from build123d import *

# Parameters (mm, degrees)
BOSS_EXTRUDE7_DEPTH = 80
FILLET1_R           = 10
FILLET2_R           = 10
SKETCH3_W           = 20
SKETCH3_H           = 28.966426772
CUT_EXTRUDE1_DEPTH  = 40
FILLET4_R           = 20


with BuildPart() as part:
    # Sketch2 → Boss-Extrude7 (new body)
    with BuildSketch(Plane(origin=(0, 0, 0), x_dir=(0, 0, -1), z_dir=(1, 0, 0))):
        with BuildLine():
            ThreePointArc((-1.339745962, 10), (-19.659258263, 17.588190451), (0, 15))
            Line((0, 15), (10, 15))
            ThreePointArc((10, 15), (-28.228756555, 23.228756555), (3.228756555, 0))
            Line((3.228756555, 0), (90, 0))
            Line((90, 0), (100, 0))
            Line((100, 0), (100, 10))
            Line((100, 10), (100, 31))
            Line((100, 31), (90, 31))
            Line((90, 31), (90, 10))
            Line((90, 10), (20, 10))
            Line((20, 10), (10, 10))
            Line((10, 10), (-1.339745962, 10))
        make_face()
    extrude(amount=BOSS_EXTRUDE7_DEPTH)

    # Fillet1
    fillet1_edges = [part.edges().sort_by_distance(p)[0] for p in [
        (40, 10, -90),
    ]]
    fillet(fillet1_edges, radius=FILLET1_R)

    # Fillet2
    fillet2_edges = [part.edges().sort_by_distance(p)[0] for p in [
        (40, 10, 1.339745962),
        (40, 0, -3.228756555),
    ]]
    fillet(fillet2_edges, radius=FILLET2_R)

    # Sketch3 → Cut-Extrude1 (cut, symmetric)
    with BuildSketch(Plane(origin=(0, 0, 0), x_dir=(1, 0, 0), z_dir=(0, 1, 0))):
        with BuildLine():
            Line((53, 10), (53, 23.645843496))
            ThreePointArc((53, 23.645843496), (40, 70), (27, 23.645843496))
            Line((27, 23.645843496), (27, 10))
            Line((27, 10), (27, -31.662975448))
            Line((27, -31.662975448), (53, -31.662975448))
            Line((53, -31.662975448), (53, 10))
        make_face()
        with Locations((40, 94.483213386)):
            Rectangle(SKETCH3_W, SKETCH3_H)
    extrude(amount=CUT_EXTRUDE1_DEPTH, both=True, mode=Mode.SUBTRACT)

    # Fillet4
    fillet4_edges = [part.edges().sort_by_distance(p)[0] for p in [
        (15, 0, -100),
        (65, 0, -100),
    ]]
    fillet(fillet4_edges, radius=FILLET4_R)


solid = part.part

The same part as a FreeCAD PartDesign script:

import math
import FreeCAD as App
import Part
import Sketcher

V = App.Vector


def edges_at(feature, points):
    """Names of the edges that pass closest to the given points."""
    edges = feature.Shape.Edges
    near = lambda p: min(range(len(edges)), key=lambda i: edges[i].distToShape(Part.Vertex(*p))[0])
    return sorted({f"Edge{near(p) + 1}" for p in points})

doc = App.newDocument("Part")
body = doc.addObject("PartDesign::Body", "Body")

# Sketch on YZ plane
sketch1 = body.newObject("Sketcher::SketchObject", "Sketch")
sketch1.AttachmentSupport = (doc.getObject("YZ_Plane"), [""])
sketch1.MapMode = "FlatFace"
sketch1.addGeometry([
    Part.ArcOfCircle(Part.Circle(V(15, 10, 0), V(0, 0, 1), 10), math.radians(-90), math.radians(240)),  # 0
    Part.LineSegment(V(15, 0, 0), V(15, -10, 0)),  # 1
    Part.ArcOfCircle(Part.Circle(V(15, 10, 0), V(0, 0, 1), 20), math.radians(-90), math.radians(221.409622)),  # 2
    Part.LineSegment(V(0, -3.228757, 0), V(0, -100, 0)),  # 3
    Part.LineSegment(V(0, -100, 0), V(31, -100, 0)),  # 4
    Part.LineSegment(V(31, -100, 0), V(31, -90, 0)),  # 5
    Part.LineSegment(V(31, -90, 0), V(10, -90, 0)),  # 6
    Part.LineSegment(V(10, -90, 0), V(10, 1.339746, 0)),  # 7
], False)
sketch1.addConstraint([
    Sketcher.Constraint("Coincident", 0, 1, 1, 1),
    Sketcher.Constraint("Coincident", 1, 2, 2, 1),
    Sketcher.Constraint("Coincident", 2, 2, 3, 1),
    Sketcher.Constraint("Coincident", 3, 2, 4, 1),
    Sketcher.Constraint("Coincident", 4, 2, 5, 1),
    Sketcher.Constraint("Coincident", 5, 2, 6, 1),
    Sketcher.Constraint("Coincident", 6, 2, 7, 1),
    Sketcher.Constraint("Coincident", 7, 2, 0, 2),
    Sketcher.Constraint("Vertical", 1),
    Sketcher.Constraint("Vertical", 3),
    Sketcher.Constraint("Horizontal", 4),
    Sketcher.Constraint("Vertical", 5),
    Sketcher.Constraint("Horizontal", 6),
    Sketcher.Constraint("Vertical", 7),
    Sketcher.Constraint("Coincident", 2, 3, 0, 3),
    Sketcher.Constraint("PointOnObject", 0, 1, -1),
    Sketcher.Constraint("PointOnObject", 2, 2, -2),
    Sketcher.Constraint("Vertical", 2, 3, 0, 1),
    Sketcher.Constraint("Equal", 1, 5),
    Sketcher.Constraint("Radius", 0, 10.0),
    Sketcher.Constraint("Radius", 2, 20.0),
    Sketcher.Constraint("DistanceX", 4, 1, 4, 2, 31.0),
    Sketcher.Constraint("DistanceX", 6, 2, 6, 1, 21.0),
    Sketcher.Constraint("DistanceX", -1, 1, 0, 3, 15.0),
    Sketcher.Constraint("DistanceY", 3, 2, -1, 1, 100.0),
])
pad1 = body.newObject("PartDesign::Pad", "Pad")
pad1.Profile = sketch1
pad1.Length = 80
doc.recompute()

fillet = body.newObject("PartDesign::Fillet", "Fillet")
fillet.Base = (pad1, edges_at(pad1, [(40, 10, -90)]))
fillet.Radius = 10
doc.recompute()

fillet2 = body.newObject("PartDesign::Fillet", "Fillet001")
fillet2.Base = (fillet, edges_at(fillet, [(40, 10, 1.34), (40, 0, -3.229)]))
fillet2.Radius = 10

# Sketch on XZ plane
sketch2 = body.newObject("Sketcher::SketchObject", "Sketch001")
sketch2.AttachmentSupport = (doc.getObject("XZ_Plane"), [""])
sketch2.MapMode = "FlatFace"
sketch2.addGeometry([
    Part.ArcOfCircle(Part.Circle(V(40, -45, 0), V(0, 0, 1), 25), math.radians(121.332251), math.radians(418.667749)),  # 0
    Part.LineSegment(V(27, -23.645843, 0), V(27, 31.662975, 0)),  # 1
    Part.LineSegment(V(27, 31.662975, 0), V(53, 31.662975, 0)),  # 2
    Part.LineSegment(V(53, 31.662975, 0), V(53, -23.645843, 0)),  # 3
    Part.LineSegment(V(30, -108.966427, 0), V(30, -80, 0)),  # 4
    Part.LineSegment(V(30, -80, 0), V(50, -80, 0)),  # 5
    Part.LineSegment(V(50, -80, 0), V(50, -108.966427, 0)),  # 6
    Part.LineSegment(V(50, -108.966427, 0), V(30, -108.966427, 0)),  # 7
], False)
sketch2.addConstraint([
    Sketcher.Constraint("Coincident", 0, 1, 1, 1),
    Sketcher.Constraint("Coincident", 1, 2, 2, 1),
    Sketcher.Constraint("Coincident", 2, 2, 3, 1),
    Sketcher.Constraint("Coincident", 3, 2, 0, 2),
    Sketcher.Constraint("Coincident", 4, 2, 5, 1),
    Sketcher.Constraint("Coincident", 5, 2, 6, 1),
    Sketcher.Constraint("Coincident", 6, 2, 7, 1),
    Sketcher.Constraint("Coincident", 7, 2, 4, 1),
    Sketcher.Constraint("Vertical", 1),
    Sketcher.Constraint("Horizontal", 2),
    Sketcher.Constraint("Vertical", 3),
    Sketcher.Constraint("Vertical", 4),
    Sketcher.Constraint("Horizontal", 5),
    Sketcher.Constraint("Vertical", 6),
    Sketcher.Constraint("Horizontal", 7),
    Sketcher.Constraint("Horizontal", 0, 1, 3, 2),
    Sketcher.Constraint("Radius", 0, 25.0),
    Sketcher.Constraint("DistanceX", 2, 1, 2, 2, 26.0),
    Sketcher.Constraint("DistanceX", 5, 1, 5, 2, 20.0),
    Sketcher.Constraint("DistanceX", -1, 1, 0, 3, 40.0),
    Sketcher.Constraint("DistanceY", 0, 3, -1, 1, 45.0),
    Sketcher.Constraint("DistanceX", -1, 1, 4, 2, 30.0),
    Sketcher.Constraint("DistanceY", 4, 2, -1, 1, 80.0),
    Sketcher.Constraint("DistanceY", 1, 1, 1, 2, 55.308819),
    Sketcher.Constraint("DistanceY", 4, 1, 4, 2, 28.966427),
])
pocket1 = body.newObject("PartDesign::Pocket", "Pocket")
pocket1.Profile = sketch2
pocket1.Length = 80
pocket1.Midplane = True
doc.recompute()

fillet3 = body.newObject("PartDesign::Fillet", "Fillet002")
fillet3.Base = (pocket1, edges_at(pocket1, [(15, 0, -100), (65, 0, -100)]))
fillet3.Radius = 20

doc.recompute()
